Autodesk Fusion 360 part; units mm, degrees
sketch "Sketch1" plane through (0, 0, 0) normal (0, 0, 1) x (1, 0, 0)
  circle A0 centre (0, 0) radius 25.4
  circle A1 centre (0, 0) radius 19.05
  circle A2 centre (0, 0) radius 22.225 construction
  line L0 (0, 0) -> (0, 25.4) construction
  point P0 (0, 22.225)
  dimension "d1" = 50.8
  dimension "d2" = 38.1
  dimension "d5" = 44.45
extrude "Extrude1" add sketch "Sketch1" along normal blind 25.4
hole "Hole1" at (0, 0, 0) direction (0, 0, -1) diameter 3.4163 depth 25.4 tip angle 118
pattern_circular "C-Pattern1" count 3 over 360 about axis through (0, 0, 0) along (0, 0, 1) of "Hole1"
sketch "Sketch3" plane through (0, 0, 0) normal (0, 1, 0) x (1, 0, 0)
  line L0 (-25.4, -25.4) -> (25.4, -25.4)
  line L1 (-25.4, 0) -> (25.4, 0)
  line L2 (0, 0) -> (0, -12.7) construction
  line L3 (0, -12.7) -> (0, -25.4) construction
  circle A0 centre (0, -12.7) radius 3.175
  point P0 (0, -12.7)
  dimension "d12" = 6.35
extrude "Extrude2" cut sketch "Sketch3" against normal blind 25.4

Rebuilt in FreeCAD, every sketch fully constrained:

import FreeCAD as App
import Part
import Sketcher
from FreeCAD import Vector
Q = App.Units.Quantity

doc = App.newDocument("Part")
body = doc.addObject("PartDesign::Body", "Body")

# Sketch on XY plane
sketch1 = body.newObject("Sketcher::SketchObject", "Sketch")
sketch1.AttachmentSupport = (doc.getObject("XY_Plane"), [""])
sketch1.MapMode = "FlatFace"
sketch1.addGeometry([
    Part.Circle(Vector(0, 0, 0), Vector(0, 0, 1), 25),
    Part.Circle(Vector(0, 0, 0), Vector(0, 0, 1), 19),
], False)
sketch1.addConstraint([
    Sketcher.Constraint("Coincident", 0, 3, -1, 1),
    Sketcher.Constraint("Coincident", 1, 3, -1, 1),
    Sketcher.Constraint("Diameter", 0, Q("2 in")),
    Sketcher.Constraint("Diameter", 1, Q("1.5 in")),
])
pad1 = body.newObject("PartDesign::Pad", "Pad")
pad1.Profile = sketch1
pad1.Length = Q("1 in")

# Sketch on XY plane
sketch2 = body.newObject("Sketcher::SketchObject", "Sketch001")
sketch2.AttachmentSupport = (doc.getObject("XY_Plane"), [""])
sketch2.MapMode = "FlatFace"
sketch2.addGeometry(Part.Circle(Vector(0, 0, 0), Vector(0, 0, 1), 1.7), False)
sketch2.addConstraint([
    Sketcher.Constraint("Coincident", 0, 3, -1, 1),
    Sketcher.Constraint("Diameter", 0, Q("0.1345 in")),
])
doc.recompute()
hole = body.newObject("PartDesign::Hole", "Hole")
hole.Profile = sketch2
hole.ThreadType = "None"
hole.Diameter = Q("0.1345 in")
hole.DepthType = "Dimension"
hole.Depth = Q("1 in")
hole.DrillPoint = "Angled"
hole.DrillPointAngle = 118
doc.recompute()

polarpattern = body.newObject("PartDesign::PolarPattern", "PolarPattern")
polarpattern.Originals = [hole]
polarpattern.Axis = (doc.getObject("Z_Axis"), [""])
polarpattern.Angle = 360
polarpattern.Occurrences = 3
body.Tip = polarpattern

# Sketch on XZ plane
sketch3 = body.newObject("Sketcher::SketchObject", "Sketch002")
sketch3.AttachmentSupport = (doc.getObject("XZ_Plane"), [""])
sketch3.MapMode = "FlatFace"
sketch3.addGeometry(Part.Circle(Vector(0, 12.7, 0), Vector(0, 0, 1), 3.2), False)
sketch3.addConstraint([
    Sketcher.Constraint("PointOnObject", 0, 3, -2),
    Sketcher.Constraint("Diameter", 0, Q("0.25 in")),
    Sketcher.Constraint("DistanceY", -1, 1, 0, 3, Q("0.5 in")),
])
pocket1 = body.newObject("PartDesign::Pocket", "Pocket")
pocket1.Profile = sketch3
pocket1.Length = Q("1 in")
pocket1.Reversed = True

doc.recompute()
